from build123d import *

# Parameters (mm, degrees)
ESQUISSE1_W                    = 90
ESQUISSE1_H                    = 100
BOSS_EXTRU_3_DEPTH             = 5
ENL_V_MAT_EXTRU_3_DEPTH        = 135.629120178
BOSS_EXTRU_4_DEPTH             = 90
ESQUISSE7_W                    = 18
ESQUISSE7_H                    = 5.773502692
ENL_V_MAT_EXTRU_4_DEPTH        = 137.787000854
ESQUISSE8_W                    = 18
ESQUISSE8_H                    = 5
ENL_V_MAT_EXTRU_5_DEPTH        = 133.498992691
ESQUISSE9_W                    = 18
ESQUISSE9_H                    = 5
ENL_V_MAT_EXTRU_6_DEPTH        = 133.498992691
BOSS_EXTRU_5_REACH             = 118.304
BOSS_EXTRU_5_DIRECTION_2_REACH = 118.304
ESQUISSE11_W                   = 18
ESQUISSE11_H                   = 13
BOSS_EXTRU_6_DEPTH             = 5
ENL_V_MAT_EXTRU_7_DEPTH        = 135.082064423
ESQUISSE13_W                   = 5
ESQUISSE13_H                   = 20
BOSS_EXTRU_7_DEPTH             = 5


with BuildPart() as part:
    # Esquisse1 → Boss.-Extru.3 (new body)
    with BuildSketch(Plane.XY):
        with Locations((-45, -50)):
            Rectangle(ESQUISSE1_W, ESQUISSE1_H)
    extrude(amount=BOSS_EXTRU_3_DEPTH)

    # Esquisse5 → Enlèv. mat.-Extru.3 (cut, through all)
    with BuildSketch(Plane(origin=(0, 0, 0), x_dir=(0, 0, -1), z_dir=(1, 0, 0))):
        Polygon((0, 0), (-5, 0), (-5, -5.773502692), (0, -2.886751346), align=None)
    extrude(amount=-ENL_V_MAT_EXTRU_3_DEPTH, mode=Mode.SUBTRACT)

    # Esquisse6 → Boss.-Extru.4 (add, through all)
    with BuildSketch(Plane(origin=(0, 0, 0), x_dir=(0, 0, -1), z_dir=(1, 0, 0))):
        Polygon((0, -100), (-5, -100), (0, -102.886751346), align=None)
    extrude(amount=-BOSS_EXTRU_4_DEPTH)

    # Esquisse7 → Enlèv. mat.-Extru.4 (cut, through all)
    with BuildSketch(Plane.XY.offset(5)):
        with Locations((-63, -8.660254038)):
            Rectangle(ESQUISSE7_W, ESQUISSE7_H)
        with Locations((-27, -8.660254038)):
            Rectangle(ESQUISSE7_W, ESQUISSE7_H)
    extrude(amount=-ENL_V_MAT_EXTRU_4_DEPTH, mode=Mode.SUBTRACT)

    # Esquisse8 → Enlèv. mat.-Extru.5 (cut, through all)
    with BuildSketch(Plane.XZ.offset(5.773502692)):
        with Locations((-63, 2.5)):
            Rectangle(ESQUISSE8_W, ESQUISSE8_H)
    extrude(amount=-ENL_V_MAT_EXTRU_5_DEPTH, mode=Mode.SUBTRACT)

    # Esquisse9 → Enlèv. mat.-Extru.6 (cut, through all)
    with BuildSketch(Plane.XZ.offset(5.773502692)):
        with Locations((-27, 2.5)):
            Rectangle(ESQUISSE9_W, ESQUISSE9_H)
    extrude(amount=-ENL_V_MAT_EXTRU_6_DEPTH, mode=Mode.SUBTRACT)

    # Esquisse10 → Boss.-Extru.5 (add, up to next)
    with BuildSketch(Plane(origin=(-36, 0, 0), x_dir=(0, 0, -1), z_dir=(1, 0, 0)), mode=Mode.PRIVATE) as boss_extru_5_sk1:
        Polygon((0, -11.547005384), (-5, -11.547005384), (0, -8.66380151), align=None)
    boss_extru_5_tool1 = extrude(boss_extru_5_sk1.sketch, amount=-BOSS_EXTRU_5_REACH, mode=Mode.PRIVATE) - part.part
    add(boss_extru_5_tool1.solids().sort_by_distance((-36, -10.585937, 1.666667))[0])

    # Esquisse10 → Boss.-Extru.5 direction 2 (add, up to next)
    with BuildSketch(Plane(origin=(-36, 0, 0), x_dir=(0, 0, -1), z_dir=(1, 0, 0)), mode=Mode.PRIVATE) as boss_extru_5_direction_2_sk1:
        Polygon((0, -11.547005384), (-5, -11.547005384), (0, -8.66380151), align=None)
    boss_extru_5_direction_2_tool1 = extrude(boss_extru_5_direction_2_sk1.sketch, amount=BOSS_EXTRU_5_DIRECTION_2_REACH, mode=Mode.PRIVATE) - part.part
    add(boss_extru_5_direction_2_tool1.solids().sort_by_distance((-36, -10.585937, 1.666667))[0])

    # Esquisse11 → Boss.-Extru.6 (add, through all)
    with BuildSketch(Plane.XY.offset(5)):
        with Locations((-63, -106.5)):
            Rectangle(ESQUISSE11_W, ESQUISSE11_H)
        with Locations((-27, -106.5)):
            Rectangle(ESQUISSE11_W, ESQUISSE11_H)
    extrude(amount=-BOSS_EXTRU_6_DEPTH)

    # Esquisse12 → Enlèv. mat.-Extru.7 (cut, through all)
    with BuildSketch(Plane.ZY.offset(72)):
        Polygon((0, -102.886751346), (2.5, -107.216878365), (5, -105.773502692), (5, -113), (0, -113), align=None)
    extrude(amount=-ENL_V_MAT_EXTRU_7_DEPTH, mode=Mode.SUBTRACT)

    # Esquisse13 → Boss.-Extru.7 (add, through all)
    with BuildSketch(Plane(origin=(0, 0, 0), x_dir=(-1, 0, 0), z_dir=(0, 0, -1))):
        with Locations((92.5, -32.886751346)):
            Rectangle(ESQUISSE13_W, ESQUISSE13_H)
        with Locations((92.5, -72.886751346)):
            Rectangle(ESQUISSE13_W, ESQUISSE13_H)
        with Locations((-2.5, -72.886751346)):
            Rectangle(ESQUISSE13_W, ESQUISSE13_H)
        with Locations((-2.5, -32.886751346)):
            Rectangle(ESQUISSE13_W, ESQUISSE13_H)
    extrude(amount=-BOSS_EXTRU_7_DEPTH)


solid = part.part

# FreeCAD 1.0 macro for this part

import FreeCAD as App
import Part
import Sketcher
Q = App.Units.Quantity


def add_polygon(sketch, points):
    """Adds a closed chain of lines whose ends are joined by coincident constraints."""
    first, n = sketch.GeometryCount, len(points)
    for a, b in zip(points, points[1:] + points[:1]):
        sketch.addGeometry(Part.LineSegment(App.Vector(*a, 0), App.Vector(*b, 0)), False)
    for i in range(n):
        sketch.addConstraint(Sketcher.Constraint("Coincident", first + i, 2, first + (i + 1) % n, 1))

doc = App.newDocument("Part")
body = doc.addObject("PartDesign::Body", "Body")

# Sketch on XY plane
sketch1 = body.newObject("Sketcher::SketchObject", "Sketch")
sketch1.AttachmentSupport = (doc.getObject("XY_Plane"), [""])
sketch1.MapMode = "FlatFace"
add_polygon(sketch1, [(-90, 0), (-90, -100), (0, -100), (0, 0)])  # lines 0-3
sketch1.addConstraint([
    Sketcher.Constraint("Vertical", 0),
    Sketcher.Constraint("Horizontal", 1),
    Sketcher.Constraint("Vertical", 2),
    Sketcher.Constraint("Horizontal", 3),
    Sketcher.Constraint("Coincident", 2, 2, -1, 1),
    Sketcher.Constraint("DistanceX", 1, 1, 1, 2, 90.0),
    Sketcher.Constraint("DistanceY", 0, 2, 0, 1, 100.0),
])
pad1 = body.newObject("PartDesign::Pad", "Pad")
pad1.Profile = sketch1
pad1.Length = 5

# Sketch on YZ plane
sketch2 = body.newObject("Sketcher::SketchObject", "Sketch001")
sketch2.AttachmentSupport = (doc.getObject("YZ_Plane"), [""])
sketch2.MapMode = "FlatFace"
add_polygon(sketch2, [(0, 0), (0, 5), (-5.8, 5), (-2.9, 0)])  # lines 0-3
sketch2.addConstraint([
    Sketcher.Constraint("Vertical", 0),
    Sketcher.Constraint("Horizontal", 1),
    Sketcher.Constraint("Horizontal", 3),
    Sketcher.Constraint("Coincident", 3, 2, -1, 1),
    Sketcher.Constraint("DistanceY", 0, 1, 0, 2, 5.0),
    Sketcher.Constraint("Angle", 2, Q("-60 deg")),
    Sketcher.Constraint("DistanceX", 3, 1, 3, 2, 2.886751),
])
pocket1 = body.newObject("PartDesign::Pocket", "Pocket")
pocket1.Profile = sketch2
pocket1.Type = "ThroughAll"

# Sketch on YZ plane
sketch3 = body.newObject("Sketcher::SketchObject", "Sketch002")
sketch3.AttachmentSupport = (doc.getObject("YZ_Plane"), [""])
sketch3.MapMode = "FlatFace"
add_polygon(sketch3, [(-100, 0), (-100, 5), (-102.9, 0)])  # lines 0-2
sketch3.addConstraint([
    Sketcher.Constraint("Vertical", 0),
    Sketcher.Constraint("Horizontal", 2),
    Sketcher.Constraint("PointOnObject", 1, 2, -1),
    Sketcher.Constraint("DistanceY", 0, 1, 0, 2, 5.0),
    Sketcher.Constraint("Angle", 1, Q("-120 deg")),
    Sketcher.Constraint("DistanceX", 0, 2, -1, 1, 100.0),
])
pad2 = body.newObject("PartDesign::Pad", "Pad001")
pad2.Profile = sketch3
pad2.Length = 90
pad2.Reversed = True

# Sketch on XY plane
sketch4 = body.newObject("Sketcher::SketchObject", "Sketch003")
sketch4.AttachmentSupport = (doc.getObject("XY_Plane"), [""])
sketch4.MapMode = "FlatFace"
sketch4.AttachmentOffset = App.Placement(App.Vector(0, 0, 5), App.Rotation())
add_polygon(sketch4, [(-72, -6), (-72, -12), (-54, -12), (-54, -6)])  # lines 0-3
add_polygon(sketch4, [(-36, -6), (-36, -12), (-18, -12), (-18, -6)])  # lines 4-7
sketch4.addConstraint([
    Sketcher.Constraint("Vertical", 0),
    Sketcher.Constraint("Horizontal", 1),
    Sketcher.Constraint("Vertical", 2),
    Sketcher.Constraint("Horizontal", 3),
    Sketcher.Constraint("Vertical", 4),
    Sketcher.Constraint("Horizontal", 5),
    Sketcher.Constraint("Vertical", 6),
    Sketcher.Constraint("Horizontal", 7),
    Sketcher.Constraint("Horizontal", 1, 2, 4, 2),
    Sketcher.Constraint("Horizontal", 3, 2, 6, 2),
    Sketcher.Constraint("Equal", 3, 5),
    Sketcher.Constraint("DistanceX", 1, 1, 1, 2, 18.0),
    Sketcher.Constraint("DistanceX", 0, 2, -1, 1, 72.0),
    Sketcher.Constraint("DistanceX", 4, 2, -1, 1, 36.0),
    Sketcher.Constraint("DistanceY", 0, 2, 0, 1, 5.773503),
    Sketcher.Constraint("DistanceY", 0, 2, -1, 1, 11.547005),
])
pocket2 = body.newObject("PartDesign::Pocket", "Pocket001")
pocket2.Profile = sketch4
pocket2.Type = "ThroughAll"

# Sketch on XZ plane
sketch5 = body.newObject("Sketcher::SketchObject", "Sketch004")
sketch5.AttachmentSupport = (doc.getObject("XZ_Plane"), [""])
sketch5.MapMode = "FlatFace"
sketch5.AttachmentOffset = App.Placement(App.Vector(0, 0, 5.773503), App.Rotation())
add_polygon(sketch5, [(-72, 5), (-72, 0), (-54, 0), (-54, 5)])  # lines 0-3
sketch5.addConstraint([
    Sketcher.Constraint("Vertical", 0),
    Sketcher.Constraint("Horizontal", 1),
    Sketcher.Constraint("Vertical", 2),
    Sketcher.Constraint("Horizontal", 3),
    Sketcher.Constraint("PointOnObject", 0, 2, -1),
    Sketcher.Constraint("DistanceX", 1, 1, 1, 2, 18.0),
    Sketcher.Constraint("DistanceY", 0, 2, 0, 1, 5.0),
    Sketcher.Constraint("DistanceX", 0, 2, -1, 1, 72.0),
])
pocket3 = body.newObject("PartDesign::Pocket", "Pocket002")
pocket3.Profile = sketch5
pocket3.Type = "ThroughAll"

# Sketch on XZ plane
sketch6 = body.newObject("Sketcher::SketchObject", "Sketch005")
sketch6.AttachmentSupport = (doc.getObject("XZ_Plane"), [""])
sketch6.MapMode = "FlatFace"
sketch6.AttachmentOffset = App.Placement(App.Vector(0, 0, 5.773503), App.Rotation())
add_polygon(sketch6, [(-36, 5), (-36, 0), (-18, 0), (-18, 5)])  # lines 0-3
sketch6.addConstraint([
    Sketcher.Constraint("Vertical", 0),
    Sketcher.Constraint("Horizontal", 1),
    Sketcher.Constraint("Vertical", 2),
    Sketcher.Constraint("Horizontal", 3),
    Sketcher.Constraint("PointOnObject", 0, 2, -1),
    Sketcher.Constraint("DistanceX", 1, 1, 1, 2, 18.0),
    Sketcher.Constraint("DistanceY", 0, 2, 0, 1, 5.0),
    Sketcher.Constraint("DistanceX", 0, 2, -1, 1, 36.0),
])
pocket4 = body.newObject("PartDesign::Pocket", "Pocket003")
pocket4.Profile = sketch6
pocket4.Type = "ThroughAll"

# Sketch on YZ plane
sketch7 = body.newObject("Sketcher::SketchObject", "Sketch006")
sketch7.AttachmentSupport = (doc.getObject("YZ_Plane"), [""])
sketch7.MapMode = "FlatFace"
sketch7.AttachmentOffset = App.Placement(App.Vector(0, 0, -36), App.Rotation())
add_polygon(sketch7, [(-11.5, 5), (-11.5, 0), (-8.7, 0)])  # lines 0-2
sketch7.addConstraint([
    Sketcher.Constraint("Vertical", 0),
    Sketcher.Constraint("Horizontal", 1),
    Sketcher.Constraint("PointOnObject", 0, 2, -1),
    Sketcher.Constraint("DistanceY", 0, 2, 0, 1, 5.0),
    Sketcher.Constraint("DistanceX", 1, 2, -1, 1, 8.663802),
    Sketcher.Constraint("Distance", 2, 5.77173),
])
pad3 = body.newObject("PartDesign::Pad", "Pad002")
pad3.Profile = sketch7
pad3.Length = 36
pad3.Reversed = True

# Sketch on YZ plane
sketch8 = body.newObject("Sketcher::SketchObject", "Sketch007")
sketch8.AttachmentSupport = (doc.getObject("YZ_Plane"), [""])
sketch8.MapMode = "FlatFace"
sketch8.AttachmentOffset = App.Placement(App.Vector(0, 0, -36), App.Rotation())
add_polygon(sketch8, [(-11.5, 5), (-11.5, 0), (-8.7, 0)])  # lines 0-2
sketch8.addConstraint([
    Sketcher.Constraint("Vertical", 0),
    Sketcher.Constraint("Horizontal", 1),
    Sketcher.Constraint("PointOnObject", 0, 2, -1),
    Sketcher.Constraint("DistanceY", 0, 2, 0, 1, 5.0),
    Sketcher.Constraint("DistanceX", 1, 2, -1, 1, 8.663802),
    Sketcher.Constraint("Distance", 2, 5.77173),
])
pad4 = body.newObject("PartDesign::Pad", "Pad003")
pad4.Profile = sketch8
pad4.Type = "UpToFirst"

# Sketch on XY plane
sketch9 = body.newObject("Sketcher::SketchObject", "Sketch008")
sketch9.AttachmentSupport = (doc.getObject("XY_Plane"), [""])
sketch9.MapMode = "FlatFace"
sketch9.AttachmentOffset = App.Placement(App.Vector(0, 0, 5), App.Rotation())
add_polygon(sketch9, [(-72, -100), (-72, -113), (-54, -113), (-54, -100)])  # lines 0-3
add_polygon(sketch9, [(-36, -100), (-36, -113), (-18, -113), (-18, -100)])  # lines 4-7
sketch9.addConstraint([
    Sketcher.Constraint("Vertical", 0),
    Sketcher.Constraint("Horizontal", 1),
    Sketcher.Constraint("Vertical", 2),
    Sketcher.Constraint("Horizontal", 3),
    Sketcher.Constraint("Vertical", 4),
    Sketcher.Constraint("Horizontal", 5),
    Sketcher.Constraint("Vertical", 6),
    Sketcher.Constraint("Horizontal", 7),
    Sketcher.Constraint("Horizontal", 1, 2, 4, 2),
    Sketcher.Constraint("Horizontal", 3, 2, 6, 2),
    Sketcher.Constraint("Equal", 3, 5),
    Sketcher.Constraint("DistanceX", 1, 1, 1, 2, 18.0),
    Sketcher.Constraint("DistanceY", 0, 2, 0, 1, 13.0),
    Sketcher.Constraint("DistanceX", 0, 2, -1, 1, 72.0),
    Sketcher.Constraint("DistanceY", 0, 2, -1, 1, 113.0),
    Sketcher.Constraint("DistanceX", 4, 2, -1, 1, 36.0),
])
pad5 = body.newObject("PartDesign::Pad", "Pad004")
pad5.Profile = sketch9
pad5.Length = 5
pad5.Reversed = True

# Sketch on YZ plane
sketch10 = body.newObject("Sketcher::SketchObject", "Sketch009")
sketch10.AttachmentSupport = (doc.getObject("YZ_Plane"), [""])
sketch10.MapMode = "FlatFace"
sketch10.AttachmentOffset = App.Placement(App.Vector(0, 0, -72), App.Rotation())
add_polygon(sketch10, [(-107.2, 2.5), (-102.9, 0), (-113, 0), (-113, 5), (-105.8, 5)])  # lines 0-4
sketch10.addConstraint([
    Sketcher.Constraint("Horizontal", 1),
    Sketcher.Constraint("Vertical", 2),
    Sketcher.Constraint("Horizontal", 3),
    Sketcher.Constraint("PointOnObject", 0, 2, -1),
    Sketcher.Constraint("Perpendicular", 0, 4),
    Sketcher.Constraint("DistanceY", 2, 1, 2, 2, 5.0),
    Sketcher.Constraint("Angle", 0, Q("-30 deg")),
    Sketcher.Constraint("Distance", 0, 5.0),
    Sketcher.Constraint("DistanceX", 1, 2, -1, 1, 113.0),
    Sketcher.Constraint("DistanceX", 1, 2, 1, 1, 10.113249),
])
pocket5 = body.newObject("PartDesign::Pocket", "Pocket004")
pocket5.Profile = sketch10
pocket5.Type = "ThroughAll"
pocket5.Reversed = True

# Sketch on XY plane
sketch11 = body.newObject("Sketcher::SketchObject", "Sketch010")
sketch11.AttachmentSupport = (doc.getObject("XY_Plane"), [""])
sketch11.MapMode = "FlatFace"
add_polygon(sketch11, [(-90, -23), (-90, -43), (-95, -43), (-95, -23)])  # lines 0-3
add_polygon(sketch11, [(-90, -63), (-90, -83), (-95, -83), (-95, -63)])  # lines 4-7
add_polygon(sketch11, [(5, -63), (5, -83), (0, -83), (0, -63)])  # lines 8-11
add_polygon(sketch11, [(5, -23), (5, -43), (0, -43), (0, -23)])  # lines 12-15
sketch11.addConstraint([
    Sketcher.Constraint("Vertical", 0),
    Sketcher.Constraint("Horizontal", 1),
    Sketcher.Constraint("Vertical", 2),
    Sketcher.Constraint("Horizontal", 3),
    Sketcher.Constraint("Vertical", 4),
    Sketcher.Constraint("Horizontal", 5),
    Sketcher.Constraint("Vertical", 6),
    Sketcher.Constraint("Horizontal", 7),
    Sketcher.Constraint("Vertical", 8),
    Sketcher.Constraint("Horizontal", 9),
    Sketcher.Constraint("Vertical", 10),
    Sketcher.Constraint("Horizontal", 11),
    Sketcher.Constraint("Vertical", 12),
    Sketcher.Constraint("Horizontal", 13),
    Sketcher.Constraint("Vertical", 14),
    Sketcher.Constraint("Horizontal", 15),
    Sketcher.Constraint("PointOnObject", 9, 2, -2),
    Sketcher.Constraint("PointOnObject", 13, 2, -2),
    Sketcher.Constraint("Horizontal", 5, 2, 8, 2),
    Sketcher.Constraint("Horizontal", 7, 2, 10, 2),
    Sketcher.Constraint("Horizontal", 1, 2, 12, 2),
    Sketcher.Constraint("Horizontal", 3, 2, 14, 2),
    Sketcher.Constraint("Vertical", 3, 2, 4, 2),
    Sketcher.Constraint("Vertical", 2, 2, 5, 2),
    Sketcher.Constraint("Vertical", 11, 2, 12, 2),
    Sketcher.Constraint("Equal", 7, 9),
    Sketcher.Constraint("Equal", 2, 4),
    Sketcher.Constraint("DistanceX", 1, 2, 1, 1, 5.0),
    Sketcher.Constraint("DistanceY", 0, 2, 0, 1, 20.0),
    Sketcher.Constraint("DistanceX", 0, 2, -1, 1, 90.0),
    Sketcher.Constraint("DistanceY", 4, 2, 0, 2, 40.0),
    Sketcher.Constraint("DistanceY", 0, 2, -1, 1, 42.886751),
])
pad6 = body.newObject("PartDesign::Pad", "Pad005")
pad6.Profile = sketch11
pad6.Type = "UpToLast"

doc.recompute()
